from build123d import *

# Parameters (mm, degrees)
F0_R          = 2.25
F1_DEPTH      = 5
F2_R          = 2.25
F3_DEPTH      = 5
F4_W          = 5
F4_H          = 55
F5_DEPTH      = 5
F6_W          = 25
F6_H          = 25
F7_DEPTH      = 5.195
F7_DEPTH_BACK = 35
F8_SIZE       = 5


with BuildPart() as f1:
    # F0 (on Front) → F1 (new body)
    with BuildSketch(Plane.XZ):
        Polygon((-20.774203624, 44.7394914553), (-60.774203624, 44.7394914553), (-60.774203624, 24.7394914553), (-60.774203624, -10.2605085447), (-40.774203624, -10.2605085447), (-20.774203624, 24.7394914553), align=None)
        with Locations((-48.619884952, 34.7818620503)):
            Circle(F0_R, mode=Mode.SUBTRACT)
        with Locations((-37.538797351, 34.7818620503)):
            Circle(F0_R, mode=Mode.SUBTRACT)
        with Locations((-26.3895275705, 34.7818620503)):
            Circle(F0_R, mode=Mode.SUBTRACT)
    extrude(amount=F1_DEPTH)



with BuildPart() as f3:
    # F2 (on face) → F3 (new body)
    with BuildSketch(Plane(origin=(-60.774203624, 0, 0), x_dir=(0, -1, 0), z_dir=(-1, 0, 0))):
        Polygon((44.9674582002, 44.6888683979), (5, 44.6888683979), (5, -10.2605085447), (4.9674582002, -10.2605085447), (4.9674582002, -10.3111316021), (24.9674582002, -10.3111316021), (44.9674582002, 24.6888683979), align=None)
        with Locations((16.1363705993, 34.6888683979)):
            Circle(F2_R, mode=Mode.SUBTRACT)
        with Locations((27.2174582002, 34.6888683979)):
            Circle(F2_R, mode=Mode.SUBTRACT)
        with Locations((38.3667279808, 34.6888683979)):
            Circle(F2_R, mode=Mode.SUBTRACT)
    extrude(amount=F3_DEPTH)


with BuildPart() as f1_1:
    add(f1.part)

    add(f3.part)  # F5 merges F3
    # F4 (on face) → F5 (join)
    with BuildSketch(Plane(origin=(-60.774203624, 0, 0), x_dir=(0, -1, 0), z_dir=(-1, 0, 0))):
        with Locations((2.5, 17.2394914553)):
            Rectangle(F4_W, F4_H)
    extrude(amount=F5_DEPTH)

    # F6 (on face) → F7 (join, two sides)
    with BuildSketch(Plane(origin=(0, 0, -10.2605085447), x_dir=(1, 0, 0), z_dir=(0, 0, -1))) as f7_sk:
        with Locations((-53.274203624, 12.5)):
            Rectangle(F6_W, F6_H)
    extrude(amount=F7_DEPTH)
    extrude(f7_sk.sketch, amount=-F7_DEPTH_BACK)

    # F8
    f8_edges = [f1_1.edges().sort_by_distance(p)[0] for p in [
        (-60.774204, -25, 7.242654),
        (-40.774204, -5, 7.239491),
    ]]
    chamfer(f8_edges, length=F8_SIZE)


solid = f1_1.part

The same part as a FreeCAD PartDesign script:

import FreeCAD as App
import Part
import Sketcher


def edges_at(feature, points):
    """Names of the edges that pass closest to the given points."""
    edges = feature.Shape.Edges
    near = lambda p: min(range(len(edges)), key=lambda i: edges[i].distToShape(Part.Vertex(*p))[0])
    return sorted({f"Edge{near(p) + 1}" for p in points})


def add_polygon(sketch, points):
    """Adds a closed chain of lines whose ends are joined by coincident constraints."""
    first, n = sketch.GeometryCount, len(points)
    for a, b in zip(points, points[1:] + points[:1]):
        sketch.addGeometry(Part.LineSegment(App.Vector(*a, 0), App.Vector(*b, 0)), False)
    for i in range(n):
        sketch.addConstraint(Sketcher.Constraint("Coincident", first + i, 2, first + (i + 1) % n, 1))

doc = App.newDocument("Part")
body = doc.addObject("PartDesign::Body", "Body")

sketch1 = body.newObject("Sketcher::SketchObject", "Sketch")
sketch1.AttachmentSupport = (doc.getObject("XZ_Plane"), [""])
sketch1.MapMode = "FlatFace"
add_polygon(sketch1, [(-20.8, 44.7), (-60.8, 44.7), (-60.8, -10.3), (-40.8, -10.3), (-20.8, 24.7)])
sketch1.addGeometry(Part.Circle(App.Vector(-48.6, 34.8, 0), App.Vector(0, 0, 1), 2.2), False)
sketch1.addGeometry(Part.Circle(App.Vector(-37.5, 34.8, 0), App.Vector(0, 0, 1), 2.2), False)
sketch1.addGeometry(Part.Circle(App.Vector(-26.4, 34.8, 0), App.Vector(0, 0, 1), 2.2), False)
sketch1.addConstraint(Sketcher.Constraint("Horizontal", 0))
sketch1.addConstraint(Sketcher.Constraint("Vertical", 1))
sketch1.addConstraint(Sketcher.Constraint("Horizontal", 2))
sketch1.addConstraint(Sketcher.Constraint("Vertical", 4))
sketch1.addConstraint(Sketcher.Constraint("Equal", 5, 6))
sketch1.addConstraint(Sketcher.Constraint("Equal", 6, 7))
sketch1.addConstraint(Sketcher.Constraint("Horizontal", 5, 3, 6, 3))
sketch1.addConstraint(Sketcher.Constraint("Horizontal", 6, 3, 7, 3))
sketch1.addConstraint(Sketcher.Constraint("Equal", 2, 4))
sketch1.addConstraint(Sketcher.Constraint("Diameter", 5, 4.5))
sketch1.addConstraint(Sketcher.Constraint("DistanceX", 0, 2, 0, 1, 40.0))
sketch1.addConstraint(Sketcher.Constraint("DistanceX", 2, 1, 2, 2, 20.0))
sketch1.addConstraint(Sketcher.Constraint("DistanceY", 1, 2, 1, 1, 55.0))
sketch1.addConstraint(Sketcher.Constraint("DistanceY", -1, 1, 0, 2, 44.739491))
sketch1.addConstraint(Sketcher.Constraint("DistanceX", 6, 3, 7, 3, 11.14927))
sketch1.addConstraint(Sketcher.Constraint("DistanceX", 0, 2, 5, 3, 12.154319))
sketch1.addConstraint(Sketcher.Constraint("DistanceY", 5, 3, 0, 2, 9.957629))
sketch1.addConstraint(Sketcher.Constraint("DistanceX", 5, 3, -1, 1, 48.619885))
sketch1.addConstraint(Sketcher.Constraint("DistanceX", 6, 3, -1, 1, 37.538797))
pad1 = body.newObject("PartDesign::Pad", "Pad")
pad1.Profile = sketch1
pad1.Length = 5
body2 = doc.addObject("PartDesign::Body", "Body001")

sketch2 = body2.newObject("Sketcher::SketchObject", "Sketch001")
sketch2.AttachmentSupport = (doc.getObject("YZ_Plane001"), [""])
sketch2.MapMode = "FlatFace"
sketch2.AttachmentOffset = App.Placement(App.Vector(0, 0, -60.774204), App.Rotation())
add_polygon(sketch2, [(-44.967, 44.689), (-5, 44.689), (-5, -10.261), (-4.967, -10.261), (-4.967, -10.311), (-24.967, -10.311), (-44.967, 24.689)])
sketch2.addGeometry(Part.Circle(App.Vector(-16.136, 34.689, 0), App.Vector(0, 0, 1), 2.25), False)
sketch2.addGeometry(Part.Circle(App.Vector(-27.217, 34.689, 0), App.Vector(0, 0, 1), 2.25), False)
sketch2.addGeometry(Part.Circle(App.Vector(-38.367, 34.689, 0), App.Vector(0, 0, 1), 2.25), False)
sketch2.addConstraint(Sketcher.Constraint("Horizontal", 0))
sketch2.addConstraint(Sketcher.Constraint("Vertical", 1))
sketch2.addConstraint(Sketcher.Constraint("Horizontal", 2))
sketch2.addConstraint(Sketcher.Constraint("Vertical", 3))
sketch2.addConstraint(Sketcher.Constraint("Horizontal", 4))
sketch2.addConstraint(Sketcher.Constraint("Vertical", 6))
sketch2.addConstraint(Sketcher.Constraint("Equal", 7, 8))
sketch2.addConstraint(Sketcher.Constraint("Equal", 8, 9))
sketch2.addConstraint(Sketcher.Constraint("Horizontal", 7, 3, 8, 3))
sketch2.addConstraint(Sketcher.Constraint("Horizontal", 8, 3, 9, 3))
sketch2.addConstraint(Sketcher.Constraint("Equal", 4, 6))
sketch2.addConstraint(Sketcher.Constraint("Diameter", 7, 4.5))
sketch2.addConstraint(Sketcher.Constraint("DistanceX", 4, 2, 4, 1, 20.0))
sketch2.addConstraint(Sketcher.Constraint("DistanceX", 0, 2, -1, 1, 5.0))
sketch2.addConstraint(Sketcher.Constraint("DistanceY", 7, 3, 0, 2, 10.0))
sketch2.addConstraint(Sketcher.Constraint("DistanceY", 3, 2, 7, 3, 45.0))
sketch2.addConstraint(Sketcher.Constraint("DistanceX", 5, 2, 4, 2, 20.0))
sketch2.addConstraint(Sketcher.Constraint("DistanceX", 8, 3, 2, 2, 22.25))
sketch2.addConstraint(Sketcher.Constraint("DistanceX", 0, 1, 0, 2, 39.967458))
sketch2.addConstraint(Sketcher.Constraint("DistanceY", 1, 2, 1, 1, 54.949377))
sketch2.addConstraint(Sketcher.Constraint("DistanceX", 7, 3, -1, 1, 16.136371))
sketch2.addConstraint(Sketcher.Constraint("DistanceY", -1, 1, 7, 3, 34.688868))
sketch2.addConstraint(Sketcher.Constraint("DistanceX", 9, 3, 8, 3, 11.14927))
pad2 = body2.newObject("PartDesign::Pad", "Pad001")
pad2.Profile = sketch2
pad2.Length = 5
pad2.Reversed = True
body.AllowCompound = True
doc.recompute()

boolean = body.newObject("PartDesign::Boolean", "Boolean")
boolean.Type = "Fuse"
boolean.addObjects([body2])

sketch3 = body.newObject("Sketcher::SketchObject", "Sketch002")
sketch3.AttachmentSupport = (doc.getObject("YZ_Plane"), [""])
sketch3.MapMode = "FlatFace"
sketch3.AttachmentOffset = App.Placement(App.Vector(0, 0, -60.774204), App.Rotation())
add_polygon(sketch3, [(0, 45), (0, -10), (-5, -10), (-5, 45)])
sketch3.addConstraint(Sketcher.Constraint("Vertical", 0))
sketch3.addConstraint(Sketcher.Constraint("Horizontal", 1))
sketch3.addConstraint(Sketcher.Constraint("Vertical", 2))
sketch3.addConstraint(Sketcher.Constraint("Horizontal", 3))
sketch3.addConstraint(Sketcher.Constraint("PointOnObject", 0, 2, -2))
sketch3.addConstraint(Sketcher.Constraint("DistanceX", 1, 2, 1, 1, 5.0))
sketch3.addConstraint(Sketcher.Constraint("DistanceY", 0, 2, 0, 1, 55.0))
sketch3.addConstraint(Sketcher.Constraint("DistanceY", 0, 2, -1, 1, 10.260509))
pad3 = body.newObject("PartDesign::Pad", "Pad002")
pad3.Profile = sketch3
pad3.Length = 5
pad3.Reversed = True

sketch4 = body.newObject("Sketcher::SketchObject", "Sketch003")
sketch4.AttachmentSupport = (doc.getObject("XY_Plane"), [""])
sketch4.MapMode = "FlatFace"
sketch4.AttachmentOffset = App.Placement(App.Vector(0, 0, -10.260509), App.Rotation())
add_polygon(sketch4, [(-66, -25), (-66, 0), (-41, 0), (-41, -25)])
sketch4.addConstraint(Sketcher.Constraint("Vertical", 0))
sketch4.addConstraint(Sketcher.Constraint("Horizontal", 1))
sketch4.addConstraint(Sketcher.Constraint("Vertical", 2))
sketch4.addConstraint(Sketcher.Constraint("Horizontal", 3))
sketch4.addConstraint(Sketcher.Constraint("PointOnObject", 0, 2, -1))
sketch4.addConstraint(Sketcher.Constraint("Equal", 3, 0))
sketch4.addConstraint(Sketcher.Constraint("DistanceX", 1, 1, 1, 2, 25.0))
sketch4.addConstraint(Sketcher.Constraint("DistanceX", 0, 2, -1, 1, 65.774204))
pad4 = body.newObject("PartDesign::Pad", "Pad003")
pad4.Profile = sketch4
pad4.Type = "TwoLengths"
pad4.Length = 5.195
pad4.Length2 = 35
pad4.Reversed = True
doc.recompute()

chamfer = body.newObject("PartDesign::Chamfer", "Chamfer")
chamfer.Base = (pad4, edges_at(pad4, [(-60.774, -25, 7.243), (-40.774, -5, 7.239)]))
chamfer.Size = 5

doc.recompute()
